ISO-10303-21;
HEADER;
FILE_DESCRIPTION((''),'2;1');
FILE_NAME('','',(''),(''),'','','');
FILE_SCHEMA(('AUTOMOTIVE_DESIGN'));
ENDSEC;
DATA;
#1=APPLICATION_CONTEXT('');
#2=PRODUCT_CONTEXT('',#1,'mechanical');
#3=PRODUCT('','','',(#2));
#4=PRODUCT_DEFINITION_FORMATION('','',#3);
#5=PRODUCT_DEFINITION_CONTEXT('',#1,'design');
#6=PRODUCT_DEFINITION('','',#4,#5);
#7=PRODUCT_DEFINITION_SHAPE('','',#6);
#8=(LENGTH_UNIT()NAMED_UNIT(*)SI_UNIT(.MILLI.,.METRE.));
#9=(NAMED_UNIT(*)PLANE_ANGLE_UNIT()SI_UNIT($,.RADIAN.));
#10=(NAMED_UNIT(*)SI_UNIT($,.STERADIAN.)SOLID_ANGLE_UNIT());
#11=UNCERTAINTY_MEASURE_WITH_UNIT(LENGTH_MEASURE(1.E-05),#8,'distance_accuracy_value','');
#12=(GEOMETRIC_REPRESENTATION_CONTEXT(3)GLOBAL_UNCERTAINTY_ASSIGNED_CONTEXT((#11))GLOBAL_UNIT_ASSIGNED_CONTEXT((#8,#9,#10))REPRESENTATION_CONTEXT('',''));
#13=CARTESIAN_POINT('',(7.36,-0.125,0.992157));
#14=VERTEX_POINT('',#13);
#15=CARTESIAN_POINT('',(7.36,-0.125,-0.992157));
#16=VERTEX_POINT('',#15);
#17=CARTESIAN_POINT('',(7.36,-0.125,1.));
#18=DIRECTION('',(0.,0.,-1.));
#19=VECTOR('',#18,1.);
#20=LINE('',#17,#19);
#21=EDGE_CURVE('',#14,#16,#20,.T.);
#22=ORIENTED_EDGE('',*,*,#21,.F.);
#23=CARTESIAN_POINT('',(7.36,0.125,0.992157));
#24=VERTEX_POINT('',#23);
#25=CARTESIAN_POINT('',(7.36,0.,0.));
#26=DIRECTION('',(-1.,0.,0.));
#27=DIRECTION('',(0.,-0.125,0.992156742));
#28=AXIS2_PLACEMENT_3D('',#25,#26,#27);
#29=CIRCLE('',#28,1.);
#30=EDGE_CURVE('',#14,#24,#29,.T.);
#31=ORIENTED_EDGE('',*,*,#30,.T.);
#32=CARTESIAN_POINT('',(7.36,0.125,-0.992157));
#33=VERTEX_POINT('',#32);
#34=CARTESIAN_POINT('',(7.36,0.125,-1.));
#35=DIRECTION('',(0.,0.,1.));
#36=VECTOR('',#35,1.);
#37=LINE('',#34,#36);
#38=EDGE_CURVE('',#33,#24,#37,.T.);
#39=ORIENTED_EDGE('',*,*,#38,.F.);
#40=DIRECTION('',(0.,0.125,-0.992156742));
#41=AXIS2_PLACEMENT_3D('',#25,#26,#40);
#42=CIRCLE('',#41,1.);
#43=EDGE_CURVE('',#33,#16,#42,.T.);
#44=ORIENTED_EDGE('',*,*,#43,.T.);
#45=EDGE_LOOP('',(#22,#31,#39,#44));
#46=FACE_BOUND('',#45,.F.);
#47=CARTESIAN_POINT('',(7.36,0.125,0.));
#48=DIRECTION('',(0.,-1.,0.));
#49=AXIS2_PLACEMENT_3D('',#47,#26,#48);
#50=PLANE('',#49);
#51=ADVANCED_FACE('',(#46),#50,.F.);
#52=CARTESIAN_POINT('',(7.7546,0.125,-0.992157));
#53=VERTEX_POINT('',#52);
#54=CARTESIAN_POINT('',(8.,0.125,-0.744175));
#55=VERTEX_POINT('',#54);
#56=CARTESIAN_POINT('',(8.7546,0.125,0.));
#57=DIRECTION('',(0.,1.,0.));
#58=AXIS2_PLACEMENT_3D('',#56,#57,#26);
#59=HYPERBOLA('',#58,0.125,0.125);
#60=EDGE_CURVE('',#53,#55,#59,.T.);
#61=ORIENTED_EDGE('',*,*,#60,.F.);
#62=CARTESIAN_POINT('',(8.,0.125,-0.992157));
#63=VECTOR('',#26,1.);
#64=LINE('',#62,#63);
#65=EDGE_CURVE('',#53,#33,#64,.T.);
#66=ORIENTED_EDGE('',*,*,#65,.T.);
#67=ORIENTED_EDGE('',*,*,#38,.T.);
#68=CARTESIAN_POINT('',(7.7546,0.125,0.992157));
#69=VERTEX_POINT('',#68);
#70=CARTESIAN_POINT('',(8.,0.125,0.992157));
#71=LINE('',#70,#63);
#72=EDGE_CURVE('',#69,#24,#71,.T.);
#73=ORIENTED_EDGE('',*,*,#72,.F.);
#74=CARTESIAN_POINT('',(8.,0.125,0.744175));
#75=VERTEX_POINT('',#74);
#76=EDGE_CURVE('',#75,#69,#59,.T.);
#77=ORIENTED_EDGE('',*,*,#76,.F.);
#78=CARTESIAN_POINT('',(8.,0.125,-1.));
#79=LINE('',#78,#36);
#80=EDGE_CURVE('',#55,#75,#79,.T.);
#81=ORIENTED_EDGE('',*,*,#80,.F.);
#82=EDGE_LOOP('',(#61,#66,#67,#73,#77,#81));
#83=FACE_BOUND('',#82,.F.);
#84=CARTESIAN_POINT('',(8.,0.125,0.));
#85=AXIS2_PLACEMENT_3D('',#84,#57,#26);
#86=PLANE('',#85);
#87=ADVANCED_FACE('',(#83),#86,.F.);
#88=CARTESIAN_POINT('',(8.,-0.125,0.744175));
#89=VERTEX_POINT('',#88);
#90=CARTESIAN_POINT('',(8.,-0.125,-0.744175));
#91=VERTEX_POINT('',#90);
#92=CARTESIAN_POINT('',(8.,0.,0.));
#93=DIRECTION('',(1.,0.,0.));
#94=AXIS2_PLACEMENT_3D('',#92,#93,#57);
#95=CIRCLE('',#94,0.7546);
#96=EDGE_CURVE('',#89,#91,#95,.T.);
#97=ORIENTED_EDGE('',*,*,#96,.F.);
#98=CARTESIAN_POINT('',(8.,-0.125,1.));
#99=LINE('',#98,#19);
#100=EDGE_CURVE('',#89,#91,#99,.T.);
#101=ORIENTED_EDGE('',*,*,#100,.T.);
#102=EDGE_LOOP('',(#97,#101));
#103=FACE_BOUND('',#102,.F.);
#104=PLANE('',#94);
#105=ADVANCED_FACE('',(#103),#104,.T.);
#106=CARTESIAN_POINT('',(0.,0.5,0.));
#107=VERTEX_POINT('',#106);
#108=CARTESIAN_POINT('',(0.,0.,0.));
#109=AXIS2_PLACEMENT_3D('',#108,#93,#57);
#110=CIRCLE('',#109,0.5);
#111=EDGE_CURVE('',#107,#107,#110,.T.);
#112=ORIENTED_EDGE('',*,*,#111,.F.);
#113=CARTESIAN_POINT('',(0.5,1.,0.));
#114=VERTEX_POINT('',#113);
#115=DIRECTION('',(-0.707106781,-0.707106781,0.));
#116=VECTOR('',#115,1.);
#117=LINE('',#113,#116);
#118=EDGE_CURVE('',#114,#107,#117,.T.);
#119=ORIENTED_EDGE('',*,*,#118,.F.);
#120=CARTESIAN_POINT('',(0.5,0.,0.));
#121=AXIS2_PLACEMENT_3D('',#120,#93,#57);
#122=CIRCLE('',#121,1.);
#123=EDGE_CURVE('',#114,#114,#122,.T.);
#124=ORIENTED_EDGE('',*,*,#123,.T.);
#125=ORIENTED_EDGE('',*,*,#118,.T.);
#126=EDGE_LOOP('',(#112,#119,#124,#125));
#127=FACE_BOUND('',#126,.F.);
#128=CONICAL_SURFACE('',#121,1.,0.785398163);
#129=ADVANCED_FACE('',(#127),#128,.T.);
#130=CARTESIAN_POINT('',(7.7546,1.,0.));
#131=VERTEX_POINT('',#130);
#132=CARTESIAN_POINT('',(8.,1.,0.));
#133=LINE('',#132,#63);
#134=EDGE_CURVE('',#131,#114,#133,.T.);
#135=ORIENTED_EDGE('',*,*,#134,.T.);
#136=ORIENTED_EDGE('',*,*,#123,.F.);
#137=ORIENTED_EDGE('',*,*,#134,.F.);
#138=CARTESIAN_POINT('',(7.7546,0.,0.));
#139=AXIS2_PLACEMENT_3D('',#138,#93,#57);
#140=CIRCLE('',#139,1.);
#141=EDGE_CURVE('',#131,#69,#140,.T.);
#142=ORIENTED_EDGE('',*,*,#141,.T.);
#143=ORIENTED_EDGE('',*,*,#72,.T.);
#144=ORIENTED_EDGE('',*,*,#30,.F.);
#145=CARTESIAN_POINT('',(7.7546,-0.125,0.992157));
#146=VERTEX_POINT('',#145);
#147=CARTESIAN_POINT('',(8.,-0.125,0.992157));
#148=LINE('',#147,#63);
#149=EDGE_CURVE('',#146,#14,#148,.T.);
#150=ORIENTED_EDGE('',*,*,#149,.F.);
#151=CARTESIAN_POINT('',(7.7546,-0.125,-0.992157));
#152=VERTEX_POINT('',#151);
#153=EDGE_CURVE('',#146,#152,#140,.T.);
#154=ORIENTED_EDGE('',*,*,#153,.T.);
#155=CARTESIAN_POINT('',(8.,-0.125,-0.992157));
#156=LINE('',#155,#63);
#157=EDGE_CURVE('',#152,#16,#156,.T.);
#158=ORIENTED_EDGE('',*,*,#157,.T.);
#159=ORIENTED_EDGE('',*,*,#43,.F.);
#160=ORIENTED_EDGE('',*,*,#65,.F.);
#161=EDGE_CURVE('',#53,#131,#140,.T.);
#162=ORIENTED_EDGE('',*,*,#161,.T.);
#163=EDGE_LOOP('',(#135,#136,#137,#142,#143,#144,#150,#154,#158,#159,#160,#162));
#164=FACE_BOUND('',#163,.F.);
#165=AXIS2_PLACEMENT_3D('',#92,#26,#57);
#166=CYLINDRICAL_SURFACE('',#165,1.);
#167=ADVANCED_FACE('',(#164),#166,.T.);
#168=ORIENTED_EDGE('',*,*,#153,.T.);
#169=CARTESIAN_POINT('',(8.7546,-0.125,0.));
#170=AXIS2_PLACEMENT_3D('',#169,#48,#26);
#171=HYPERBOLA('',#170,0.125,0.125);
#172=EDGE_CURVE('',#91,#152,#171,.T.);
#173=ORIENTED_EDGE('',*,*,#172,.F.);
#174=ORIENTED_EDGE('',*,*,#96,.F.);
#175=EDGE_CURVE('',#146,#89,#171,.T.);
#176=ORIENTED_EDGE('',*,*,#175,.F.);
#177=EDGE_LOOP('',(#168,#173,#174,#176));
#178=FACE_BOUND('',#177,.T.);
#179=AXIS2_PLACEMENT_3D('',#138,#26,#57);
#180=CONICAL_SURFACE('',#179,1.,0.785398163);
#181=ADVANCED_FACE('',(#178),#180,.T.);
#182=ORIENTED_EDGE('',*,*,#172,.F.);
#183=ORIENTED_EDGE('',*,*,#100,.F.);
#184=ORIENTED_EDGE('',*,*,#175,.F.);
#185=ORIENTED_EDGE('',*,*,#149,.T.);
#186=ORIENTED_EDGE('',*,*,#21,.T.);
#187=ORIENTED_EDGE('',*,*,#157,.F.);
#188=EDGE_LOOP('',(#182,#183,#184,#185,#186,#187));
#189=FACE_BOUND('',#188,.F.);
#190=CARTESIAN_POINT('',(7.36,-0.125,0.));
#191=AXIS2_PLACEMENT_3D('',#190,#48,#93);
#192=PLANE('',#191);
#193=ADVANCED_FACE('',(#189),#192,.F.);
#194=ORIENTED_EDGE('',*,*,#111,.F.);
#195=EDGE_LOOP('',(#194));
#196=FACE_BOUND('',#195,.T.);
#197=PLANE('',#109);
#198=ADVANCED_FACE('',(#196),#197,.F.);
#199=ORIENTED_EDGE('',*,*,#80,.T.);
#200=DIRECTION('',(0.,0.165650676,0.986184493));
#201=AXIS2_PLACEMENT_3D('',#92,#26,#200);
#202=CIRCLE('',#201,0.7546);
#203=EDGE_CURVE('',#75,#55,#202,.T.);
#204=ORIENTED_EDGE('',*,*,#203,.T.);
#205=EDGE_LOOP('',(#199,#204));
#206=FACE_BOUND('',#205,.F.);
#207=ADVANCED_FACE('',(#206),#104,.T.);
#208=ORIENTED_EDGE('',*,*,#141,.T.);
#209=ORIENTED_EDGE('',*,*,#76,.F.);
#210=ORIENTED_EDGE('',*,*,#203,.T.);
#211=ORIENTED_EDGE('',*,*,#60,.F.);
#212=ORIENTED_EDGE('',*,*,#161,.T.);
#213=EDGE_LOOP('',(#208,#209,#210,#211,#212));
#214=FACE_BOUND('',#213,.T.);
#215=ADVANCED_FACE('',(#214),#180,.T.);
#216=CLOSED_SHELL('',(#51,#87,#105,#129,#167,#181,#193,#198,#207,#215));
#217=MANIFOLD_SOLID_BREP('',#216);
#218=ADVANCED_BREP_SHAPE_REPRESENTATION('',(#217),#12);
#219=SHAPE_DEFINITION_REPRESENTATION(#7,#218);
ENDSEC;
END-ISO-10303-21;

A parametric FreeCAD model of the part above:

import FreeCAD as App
import Part
import Sketcher
from FreeCAD import Vector


def edges_at(feature, points):
    """Names of the edges that pass closest to the given points."""
    edges = feature.Shape.Edges
    near = lambda p: min(range(len(edges)), key=lambda i: edges[i].distToShape(Part.Vertex(*p))[0])
    return sorted({f"Edge{near(p) + 1}" for p in points})


def add_polygon(sketch, points):
    """Adds a closed chain of lines whose ends are joined by coincident constraints."""
    first, n = sketch.GeometryCount, len(points)
    for a, b in zip(points, points[1:] + points[:1]):
        sketch.addGeometry(Part.LineSegment(App.Vector(*a, 0), App.Vector(*b, 0)), False)
    for i in range(n):
        sketch.addConstraint(Sketcher.Constraint("Coincident", first + i, 2, first + (i + 1) % n, 1))

doc = App.newDocument("Part")
body = doc.addObject("PartDesign::Body", "Body")

# Sketch on XY plane
sketch1 = body.newObject("Sketcher::SketchObject", "Sketch")
sketch1.AttachmentSupport = (doc.getObject("XY_Plane"), [""])
sketch1.MapMode = "FlatFace"
add_polygon(sketch1, [(0, 1), (0, 0), (8, 0), (8, 1)])  # lines 0-3
sketch1.addConstraint([
    Sketcher.Constraint("Vertical", 0),
    Sketcher.Constraint("Horizontal", 1),
    Sketcher.Constraint("Vertical", 2),
    Sketcher.Constraint("Horizontal", 3),
    Sketcher.Constraint("Coincident", 0, 2, -1, 1),
    Sketcher.Constraint("DistanceX", 1, 1, 1, 2, 8.0),
    Sketcher.Constraint("DistanceY", 0, 2, 0, 1, 1.0),
])
revolution = body.newObject("PartDesign::Revolution", "Revolution")
revolution.Profile = sketch1
revolution.ReferenceAxis = (sketch1, ["H_Axis"])
revolution.Angle = 360
doc.recompute()

chamfer = body.newObject("PartDesign::Chamfer", "Chamfer")
chamfer.Base = (revolution, edges_at(revolution, [(8, -1, 0)]))
chamfer.Size = 0.2454

# Sketch on XY plane
sketch2 = body.newObject("Sketcher::SketchObject", "Sketch001")
sketch2.AttachmentSupport = (doc.getObject("XY_Plane"), [""])
sketch2.MapMode = "FlatFace"
add_polygon(sketch2, [(8, 0.12), (7.36, 0.12), (7.36, -0.12), (8, -0.12)])  # lines 0-3
sketch2.addConstraint([
    Sketcher.Constraint("Horizontal", 0),
    Sketcher.Constraint("Vertical", 1),
    Sketcher.Constraint("Horizontal", 2),
    Sketcher.Constraint("Vertical", 3),
    Sketcher.Constraint("DistanceX", 0, 2, 0, 1, 0.64),
    Sketcher.Constraint("DistanceY", -1, 1, 0, 2, 0.125),
    Sketcher.Constraint("DistanceY", 1, 2, -1, 1, 0.125),
    Sketcher.Constraint("DistanceX", -1, 1, 2, 2, 8.0),
])
pocket1 = body.newObject("PartDesign::Pocket", "Pocket")
pocket1.Profile = sketch2
pocket1.Length = 2
pocket1.Midplane = True
doc.recompute()

chamfer2 = body.newObject("PartDesign::Chamfer", "Chamfer001")
chamfer2.Base = (pocket1, edges_at(pocket1, [(0, -1, 0)]))
chamfer2.Size = 0.5

doc.recompute()
